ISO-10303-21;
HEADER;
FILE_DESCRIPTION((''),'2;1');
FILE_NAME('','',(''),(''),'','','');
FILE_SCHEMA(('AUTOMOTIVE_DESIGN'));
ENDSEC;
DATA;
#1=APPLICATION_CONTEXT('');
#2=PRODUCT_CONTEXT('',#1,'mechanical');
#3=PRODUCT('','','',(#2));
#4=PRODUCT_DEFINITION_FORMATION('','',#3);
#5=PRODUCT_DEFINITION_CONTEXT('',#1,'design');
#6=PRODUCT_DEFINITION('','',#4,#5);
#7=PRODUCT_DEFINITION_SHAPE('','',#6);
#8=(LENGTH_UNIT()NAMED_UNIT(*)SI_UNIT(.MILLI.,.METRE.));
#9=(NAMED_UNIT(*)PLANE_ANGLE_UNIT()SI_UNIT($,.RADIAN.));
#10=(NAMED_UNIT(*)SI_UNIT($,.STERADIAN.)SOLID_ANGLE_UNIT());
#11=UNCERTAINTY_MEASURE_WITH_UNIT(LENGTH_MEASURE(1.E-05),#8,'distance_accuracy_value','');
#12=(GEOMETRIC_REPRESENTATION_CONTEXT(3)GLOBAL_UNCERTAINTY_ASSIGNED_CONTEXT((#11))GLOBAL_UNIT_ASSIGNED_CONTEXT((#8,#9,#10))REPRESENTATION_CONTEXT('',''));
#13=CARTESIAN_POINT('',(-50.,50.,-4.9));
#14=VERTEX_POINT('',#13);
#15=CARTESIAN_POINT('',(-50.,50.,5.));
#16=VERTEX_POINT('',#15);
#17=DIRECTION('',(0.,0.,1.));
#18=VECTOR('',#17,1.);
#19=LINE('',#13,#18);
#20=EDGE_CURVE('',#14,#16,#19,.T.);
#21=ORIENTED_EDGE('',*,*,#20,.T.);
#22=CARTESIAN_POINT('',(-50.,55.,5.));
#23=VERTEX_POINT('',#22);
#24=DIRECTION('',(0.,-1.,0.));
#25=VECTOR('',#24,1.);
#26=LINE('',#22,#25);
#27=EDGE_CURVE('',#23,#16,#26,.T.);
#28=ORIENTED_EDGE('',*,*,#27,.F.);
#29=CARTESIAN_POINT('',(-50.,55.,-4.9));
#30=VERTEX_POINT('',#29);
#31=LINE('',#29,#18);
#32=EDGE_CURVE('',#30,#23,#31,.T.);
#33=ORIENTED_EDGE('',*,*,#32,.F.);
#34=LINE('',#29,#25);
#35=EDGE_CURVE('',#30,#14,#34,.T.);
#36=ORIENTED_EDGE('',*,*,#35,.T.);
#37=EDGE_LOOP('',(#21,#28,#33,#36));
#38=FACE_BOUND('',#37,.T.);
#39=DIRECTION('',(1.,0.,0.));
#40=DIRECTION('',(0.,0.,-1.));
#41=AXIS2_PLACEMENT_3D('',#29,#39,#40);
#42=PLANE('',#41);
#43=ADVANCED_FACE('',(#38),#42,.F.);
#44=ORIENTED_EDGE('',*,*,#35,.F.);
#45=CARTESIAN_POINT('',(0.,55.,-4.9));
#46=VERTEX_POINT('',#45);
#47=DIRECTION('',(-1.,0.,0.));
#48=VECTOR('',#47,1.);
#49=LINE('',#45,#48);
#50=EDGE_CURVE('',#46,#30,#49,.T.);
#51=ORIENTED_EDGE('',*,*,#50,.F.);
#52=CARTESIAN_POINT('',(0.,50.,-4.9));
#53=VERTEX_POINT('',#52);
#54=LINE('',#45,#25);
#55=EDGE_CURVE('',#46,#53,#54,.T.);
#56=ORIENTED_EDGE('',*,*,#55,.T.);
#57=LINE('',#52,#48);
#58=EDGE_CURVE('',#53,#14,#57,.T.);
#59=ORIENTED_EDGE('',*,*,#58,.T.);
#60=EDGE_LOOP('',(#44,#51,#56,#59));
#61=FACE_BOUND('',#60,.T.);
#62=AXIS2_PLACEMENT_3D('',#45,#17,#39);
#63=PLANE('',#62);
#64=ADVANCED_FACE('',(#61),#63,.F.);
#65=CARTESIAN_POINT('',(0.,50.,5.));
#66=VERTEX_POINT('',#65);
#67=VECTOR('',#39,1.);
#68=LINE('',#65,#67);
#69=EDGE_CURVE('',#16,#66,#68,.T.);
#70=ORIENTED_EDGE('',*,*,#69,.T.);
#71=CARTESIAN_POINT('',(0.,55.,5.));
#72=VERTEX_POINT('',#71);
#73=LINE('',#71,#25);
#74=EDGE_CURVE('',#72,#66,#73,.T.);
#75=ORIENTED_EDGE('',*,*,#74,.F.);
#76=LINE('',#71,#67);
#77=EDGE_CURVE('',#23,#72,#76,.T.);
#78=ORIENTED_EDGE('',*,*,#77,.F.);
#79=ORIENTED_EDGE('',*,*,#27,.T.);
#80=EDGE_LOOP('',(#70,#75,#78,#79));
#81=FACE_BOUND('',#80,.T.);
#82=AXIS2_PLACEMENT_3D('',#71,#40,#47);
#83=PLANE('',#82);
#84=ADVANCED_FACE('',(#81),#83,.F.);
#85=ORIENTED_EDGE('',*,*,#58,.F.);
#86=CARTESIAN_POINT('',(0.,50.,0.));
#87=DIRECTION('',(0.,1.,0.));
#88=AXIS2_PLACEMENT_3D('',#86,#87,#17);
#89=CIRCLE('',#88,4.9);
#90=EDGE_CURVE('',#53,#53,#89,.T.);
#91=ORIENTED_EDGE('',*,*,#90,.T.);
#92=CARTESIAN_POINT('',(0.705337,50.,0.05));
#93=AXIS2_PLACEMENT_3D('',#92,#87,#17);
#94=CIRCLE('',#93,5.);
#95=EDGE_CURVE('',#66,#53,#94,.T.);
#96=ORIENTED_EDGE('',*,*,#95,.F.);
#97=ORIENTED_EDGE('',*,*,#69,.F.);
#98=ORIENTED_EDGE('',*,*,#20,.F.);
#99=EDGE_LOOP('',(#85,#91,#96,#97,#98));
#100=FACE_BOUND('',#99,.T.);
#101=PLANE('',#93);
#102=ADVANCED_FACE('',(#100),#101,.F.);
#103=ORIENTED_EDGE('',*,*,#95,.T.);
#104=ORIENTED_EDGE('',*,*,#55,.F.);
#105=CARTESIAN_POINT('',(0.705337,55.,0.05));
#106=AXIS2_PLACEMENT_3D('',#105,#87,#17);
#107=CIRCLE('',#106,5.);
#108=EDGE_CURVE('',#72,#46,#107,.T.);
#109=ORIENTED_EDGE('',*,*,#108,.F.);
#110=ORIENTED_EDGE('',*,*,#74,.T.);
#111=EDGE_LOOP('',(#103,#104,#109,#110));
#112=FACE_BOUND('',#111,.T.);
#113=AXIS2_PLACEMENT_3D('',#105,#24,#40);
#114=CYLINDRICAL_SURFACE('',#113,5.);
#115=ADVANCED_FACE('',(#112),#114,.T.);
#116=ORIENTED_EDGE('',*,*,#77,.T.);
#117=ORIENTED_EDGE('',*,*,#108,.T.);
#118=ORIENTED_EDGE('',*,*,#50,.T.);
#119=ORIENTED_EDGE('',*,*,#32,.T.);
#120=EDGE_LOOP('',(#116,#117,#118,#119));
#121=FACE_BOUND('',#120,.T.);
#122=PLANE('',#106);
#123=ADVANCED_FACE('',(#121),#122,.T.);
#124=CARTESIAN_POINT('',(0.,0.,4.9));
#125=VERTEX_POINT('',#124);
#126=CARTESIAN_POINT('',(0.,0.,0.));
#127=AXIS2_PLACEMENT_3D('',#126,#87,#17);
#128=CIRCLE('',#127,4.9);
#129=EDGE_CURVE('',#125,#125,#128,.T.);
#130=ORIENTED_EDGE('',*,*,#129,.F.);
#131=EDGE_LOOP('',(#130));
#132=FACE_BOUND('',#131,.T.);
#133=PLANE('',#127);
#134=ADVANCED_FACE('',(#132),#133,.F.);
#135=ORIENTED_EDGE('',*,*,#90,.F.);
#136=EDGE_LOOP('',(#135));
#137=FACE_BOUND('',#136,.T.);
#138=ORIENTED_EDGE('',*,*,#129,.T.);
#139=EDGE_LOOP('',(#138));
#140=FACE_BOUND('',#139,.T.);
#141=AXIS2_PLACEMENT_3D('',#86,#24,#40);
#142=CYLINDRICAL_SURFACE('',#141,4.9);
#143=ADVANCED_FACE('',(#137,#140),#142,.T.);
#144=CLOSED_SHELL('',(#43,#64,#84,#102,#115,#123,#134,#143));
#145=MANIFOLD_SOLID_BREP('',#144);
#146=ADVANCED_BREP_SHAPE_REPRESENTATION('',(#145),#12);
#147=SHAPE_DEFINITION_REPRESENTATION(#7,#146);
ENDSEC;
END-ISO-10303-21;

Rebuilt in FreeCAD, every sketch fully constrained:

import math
import FreeCAD as App
import Part
import Sketcher

V = App.Vector
Q = App.Units.Quantity

doc = App.newDocument("Part")
params = doc.addObject("Spreadsheet::Sheet", "Params")
for row, (alias, value) in enumerate([
    ("sketch1_diameter", "9.8 mm"),
    ("pad1_length", "50 mm"),
    ("sketch2_radius", "5 mm"),
    ("sketch2_width", "50 mm"),
    ("sketch2_height", "9.9 mm"),
    ("pad2_length", "5 mm"),
], start=1):
    params.set(f"A{row}", alias)
    params.set(f"B{row}", "=" + value)
    params.setAlias(f"B{row}", alias)

body = doc.addObject("PartDesign::Body", "Body")

sketch1 = body.newObject("Sketcher::SketchObject", "Sketch")
sketch1.AttachmentSupport = (doc.getObject("XZ_Plane"), [""])
sketch1.MapMode = "FlatFace"
sketch1.addGeometry(Part.Circle(V(0, 0, 0), V(0, 0, 1), 4.9), False)
sketch1.addConstraint([
    Sketcher.Constraint("Coincident", 0, 3, -1, 1),
    Sketcher.Constraint("Diameter", 0, Q("9.8 mm")),
])
sketch1.setExpression("Constraints[1]", "Params.sketch1_diameter")
pad1 = body.newObject("PartDesign::Pad", "Pad")
pad1.Profile = sketch1
pad1.setExpression("Length", "Params.pad1_length")
pad1.Reversed = True

sketch2 = body.newObject("Sketcher::SketchObject", "Sketch001")
sketch2.AttachmentSupport = (doc.getObject("XZ_Plane"), [""])
sketch2.MapMode = "FlatFace"
sketch2.AttachmentOffset = App.Placement(V(0, 0, -50), App.Rotation())
sketch2.addGeometry([
    Part.LineSegment(V(0, -5, 0), V(-50, -5, 0)),
    Part.LineSegment(V(-50, -5, 0), V(-50, 5, 0)),
    Part.LineSegment(V(-50, 5, 0), V(0, 5, 0)),
    Part.ArcOfCircle(Part.Circle(V(1, 0, 0), V(0, 0, 1), 5), math.radians(-98), math.radians(98)),
], False)
sketch2.addConstraint([
    Sketcher.Constraint("Coincident", 0, 2, 1, 1),
    Sketcher.Constraint("Coincident", 1, 2, 2, 1),
    Sketcher.Constraint("Coincident", 2, 2, 3, 2),
    Sketcher.Constraint("Coincident", 3, 1, 0, 1),
    Sketcher.Constraint("Horizontal", 0),
    Sketcher.Constraint("Vertical", 1),
    Sketcher.Constraint("Horizontal", 2),
    Sketcher.Constraint("PointOnObject", 2, 2, -2),
    Sketcher.Constraint("PointOnObject", 3, 1, -2),
    Sketcher.Constraint("Radius", 3, Q("5 mm")),
    Sketcher.Constraint("DistanceX", 0, 2, 0, 1, Q("50 mm")),
    Sketcher.Constraint("DistanceY", 1, 1, 1, 2, Q("9.9 mm")),
    Sketcher.Constraint("DistanceY", -1, 1, 1, 2, Q("5 mm")),
])
sketch2.setExpression("Constraints[9]", "Params.sketch2_radius")
sketch2.setExpression("Constraints[10]", "Params.sketch2_width")
sketch2.setExpression("Constraints[11]", "Params.sketch2_height")
pad2 = body.newObject("PartDesign::Pad", "Pad001")
pad2.Profile = sketch2
pad2.setExpression("Length", "Params.pad2_length")
pad2.Reversed = True

doc.recompute()
